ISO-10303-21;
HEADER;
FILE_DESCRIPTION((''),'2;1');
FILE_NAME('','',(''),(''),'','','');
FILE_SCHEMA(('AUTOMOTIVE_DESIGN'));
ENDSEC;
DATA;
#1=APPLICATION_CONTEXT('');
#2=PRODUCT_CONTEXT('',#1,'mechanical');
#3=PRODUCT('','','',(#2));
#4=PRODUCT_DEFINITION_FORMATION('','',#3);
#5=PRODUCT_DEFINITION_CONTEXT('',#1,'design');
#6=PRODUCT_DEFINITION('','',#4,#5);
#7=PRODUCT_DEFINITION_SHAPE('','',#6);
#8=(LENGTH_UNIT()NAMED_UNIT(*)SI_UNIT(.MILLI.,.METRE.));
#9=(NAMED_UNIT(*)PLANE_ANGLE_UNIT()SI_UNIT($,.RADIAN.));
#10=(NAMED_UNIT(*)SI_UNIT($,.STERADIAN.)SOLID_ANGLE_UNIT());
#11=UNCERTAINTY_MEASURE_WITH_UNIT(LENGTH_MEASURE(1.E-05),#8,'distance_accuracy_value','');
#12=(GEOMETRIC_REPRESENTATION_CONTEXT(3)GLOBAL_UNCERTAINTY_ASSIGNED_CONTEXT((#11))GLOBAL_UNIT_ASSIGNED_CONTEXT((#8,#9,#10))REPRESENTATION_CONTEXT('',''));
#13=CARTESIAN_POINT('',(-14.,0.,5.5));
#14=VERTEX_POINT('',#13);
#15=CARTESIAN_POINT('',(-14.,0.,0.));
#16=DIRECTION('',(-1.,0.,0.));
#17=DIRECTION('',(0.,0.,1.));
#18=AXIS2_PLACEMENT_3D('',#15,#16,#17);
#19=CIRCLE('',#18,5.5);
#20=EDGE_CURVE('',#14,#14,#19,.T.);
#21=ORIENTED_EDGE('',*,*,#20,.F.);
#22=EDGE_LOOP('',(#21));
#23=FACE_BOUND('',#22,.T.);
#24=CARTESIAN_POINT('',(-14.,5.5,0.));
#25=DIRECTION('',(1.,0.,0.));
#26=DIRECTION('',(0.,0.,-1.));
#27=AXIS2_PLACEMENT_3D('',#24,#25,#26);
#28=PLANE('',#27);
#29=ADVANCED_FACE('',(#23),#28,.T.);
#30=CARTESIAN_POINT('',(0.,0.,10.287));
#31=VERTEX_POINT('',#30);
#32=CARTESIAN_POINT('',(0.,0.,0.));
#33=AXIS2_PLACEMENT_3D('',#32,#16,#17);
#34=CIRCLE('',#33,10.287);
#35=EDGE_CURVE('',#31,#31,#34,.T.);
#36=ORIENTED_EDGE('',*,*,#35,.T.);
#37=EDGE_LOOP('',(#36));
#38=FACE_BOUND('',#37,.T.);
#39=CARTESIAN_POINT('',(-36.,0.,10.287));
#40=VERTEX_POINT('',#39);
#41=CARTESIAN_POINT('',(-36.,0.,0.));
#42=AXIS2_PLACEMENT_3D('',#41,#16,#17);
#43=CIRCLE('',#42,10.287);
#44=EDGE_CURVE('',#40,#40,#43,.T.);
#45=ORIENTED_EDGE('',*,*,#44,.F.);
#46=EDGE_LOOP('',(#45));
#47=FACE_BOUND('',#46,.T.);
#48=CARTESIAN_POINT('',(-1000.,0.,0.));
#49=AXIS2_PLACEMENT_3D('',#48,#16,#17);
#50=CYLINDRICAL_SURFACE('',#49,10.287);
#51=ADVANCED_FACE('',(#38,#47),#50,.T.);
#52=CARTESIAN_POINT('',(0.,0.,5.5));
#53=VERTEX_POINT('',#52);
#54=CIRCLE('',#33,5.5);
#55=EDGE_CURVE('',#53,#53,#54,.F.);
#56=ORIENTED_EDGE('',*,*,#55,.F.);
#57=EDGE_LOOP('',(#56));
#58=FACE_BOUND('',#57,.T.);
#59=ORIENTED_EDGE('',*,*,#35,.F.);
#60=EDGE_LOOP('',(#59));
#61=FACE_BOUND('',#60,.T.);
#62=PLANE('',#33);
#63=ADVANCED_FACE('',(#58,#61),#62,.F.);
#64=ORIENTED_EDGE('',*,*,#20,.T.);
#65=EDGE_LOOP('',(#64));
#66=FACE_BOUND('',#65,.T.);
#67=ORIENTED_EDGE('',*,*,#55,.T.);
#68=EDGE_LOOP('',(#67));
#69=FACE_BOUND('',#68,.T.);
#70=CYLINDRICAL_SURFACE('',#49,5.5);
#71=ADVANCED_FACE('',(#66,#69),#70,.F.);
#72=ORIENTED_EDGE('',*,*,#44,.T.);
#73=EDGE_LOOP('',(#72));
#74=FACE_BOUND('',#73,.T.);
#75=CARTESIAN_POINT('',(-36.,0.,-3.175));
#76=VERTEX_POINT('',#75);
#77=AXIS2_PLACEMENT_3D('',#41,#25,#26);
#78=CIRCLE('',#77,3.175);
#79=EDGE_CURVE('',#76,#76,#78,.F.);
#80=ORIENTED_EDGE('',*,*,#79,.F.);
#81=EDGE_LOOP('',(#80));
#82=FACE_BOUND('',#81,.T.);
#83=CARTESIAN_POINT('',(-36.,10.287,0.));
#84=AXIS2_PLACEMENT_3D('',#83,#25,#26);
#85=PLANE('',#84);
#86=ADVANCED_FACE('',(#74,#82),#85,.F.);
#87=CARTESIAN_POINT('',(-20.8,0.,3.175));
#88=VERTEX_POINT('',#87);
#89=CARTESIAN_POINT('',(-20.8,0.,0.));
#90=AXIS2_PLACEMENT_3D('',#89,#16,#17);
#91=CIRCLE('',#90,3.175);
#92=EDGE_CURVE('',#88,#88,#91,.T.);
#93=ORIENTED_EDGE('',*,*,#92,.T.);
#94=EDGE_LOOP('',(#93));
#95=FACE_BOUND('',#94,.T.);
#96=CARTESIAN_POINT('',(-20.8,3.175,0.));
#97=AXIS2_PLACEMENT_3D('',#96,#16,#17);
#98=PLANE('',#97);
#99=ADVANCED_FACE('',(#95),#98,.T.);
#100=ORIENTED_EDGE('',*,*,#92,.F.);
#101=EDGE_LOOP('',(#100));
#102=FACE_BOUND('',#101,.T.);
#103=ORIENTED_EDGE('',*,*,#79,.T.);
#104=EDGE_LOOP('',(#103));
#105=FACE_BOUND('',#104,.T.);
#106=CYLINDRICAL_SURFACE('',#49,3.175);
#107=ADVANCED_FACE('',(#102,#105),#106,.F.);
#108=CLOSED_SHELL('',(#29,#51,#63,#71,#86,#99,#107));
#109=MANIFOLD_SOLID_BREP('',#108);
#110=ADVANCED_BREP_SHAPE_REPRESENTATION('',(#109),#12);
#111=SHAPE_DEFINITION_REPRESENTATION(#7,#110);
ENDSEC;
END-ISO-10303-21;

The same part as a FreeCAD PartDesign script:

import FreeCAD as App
import Part
import Sketcher

V = App.Vector
Q = App.Units.Quantity

doc = App.newDocument("Part")
body = doc.addObject("PartDesign::Body", "Body")

sketch1 = doc.addObject("Sketcher::SketchObject", "Sketch")
body.addObject(sketch1)
sketch1.AttachmentSupport = (doc.XY_Plane, [""])
sketch1.MapMode = "FlatFace"
sketch1.addGeometry(Part.LineSegment(V(-36, 10, 0), V(-36, 0, 0)), False)
sketch1.addGeometry(Part.LineSegment(V(-36, 0, 0), V(0, 0, 0)), False)
sketch1.addGeometry(Part.LineSegment(V(0, 0, 0), V(0, 10, 0)), False)
sketch1.addGeometry(Part.LineSegment(V(0, 10, 0), V(-36, 10, 0)), False)
sketch1.addConstraint(Sketcher.Constraint("Coincident", 0, 2, 1, 1))
sketch1.addConstraint(Sketcher.Constraint("Coincident", 1, 2, 2, 1))
sketch1.addConstraint(Sketcher.Constraint("Coincident", 2, 2, 3, 1))
sketch1.addConstraint(Sketcher.Constraint("Coincident", 3, 2, 0, 1))
sketch1.addConstraint(Sketcher.Constraint("Vertical", 0))
sketch1.addConstraint(Sketcher.Constraint("Horizontal", 1))
sketch1.addConstraint(Sketcher.Constraint("Vertical", 2))
sketch1.addConstraint(Sketcher.Constraint("Horizontal", 3))
sketch1.addConstraint(Sketcher.Constraint("Coincident", 1, 2, -1, 1))
sketch1.addConstraint(Sketcher.Constraint("DistanceX", 1, 1, 1, 2, Q("36 mm")))
sketch1.addConstraint(Sketcher.Constraint("DistanceY", 0, 2, 0, 1, Q("10.287 mm")))
revolution = doc.addObject("PartDesign::Revolution", "Revolution")
body.addObject(revolution)
revolution.Profile = sketch1
revolution.ReferenceAxis = (sketch1, ["H_Axis"])
revolution.Angle = 360

sketch2 = doc.addObject("Sketcher::SketchObject", "Sketch001")
body.addObject(sketch2)
sketch2.AttachmentSupport = (doc.XY_Plane, [""])
sketch2.MapMode = "FlatFace"
sketch2.addGeometry(Part.LineSegment(V(-14, 6, 0), V(-14, 0, 0)), False)
sketch2.addGeometry(Part.LineSegment(V(-14, 0, 0), V(1, 0, 0)), False)
sketch2.addGeometry(Part.LineSegment(V(1, 0, 0), V(1, 6, 0)), False)
sketch2.addGeometry(Part.LineSegment(V(1, 6, 0), V(-14, 6, 0)), False)
sketch2.addConstraint(Sketcher.Constraint("Coincident", 0, 2, 1, 1))
sketch2.addConstraint(Sketcher.Constraint("Coincident", 1, 2, 2, 1))
sketch2.addConstraint(Sketcher.Constraint("Coincident", 2, 2, 3, 1))
sketch2.addConstraint(Sketcher.Constraint("Coincident", 3, 2, 0, 1))
sketch2.addConstraint(Sketcher.Constraint("Vertical", 0))
sketch2.addConstraint(Sketcher.Constraint("Horizontal", 1))
sketch2.addConstraint(Sketcher.Constraint("Vertical", 2))
sketch2.addConstraint(Sketcher.Constraint("Horizontal", 3))
sketch2.addConstraint(Sketcher.Constraint("PointOnObject", 0, 2, -1))
sketch2.addConstraint(Sketcher.Constraint("DistanceX", 1, 1, 1, 2, Q("15 mm")))
sketch2.addConstraint(Sketcher.Constraint("DistanceY", 0, 2, 0, 1, Q("5.5 mm")))
sketch2.addConstraint(Sketcher.Constraint("DistanceX", 0, 2, -1, 1, Q("14 mm")))
groove = doc.addObject("PartDesign::Groove", "Groove")
body.addObject(groove)
groove.Profile = sketch2
groove.ReferenceAxis = (sketch2, ["H_Axis"])
groove.Angle = 360

sketch3 = doc.addObject("Sketcher::SketchObject", "Sketch002")
body.addObject(sketch3)
sketch3.AttachmentSupport = (doc.XY_Plane, [""])
sketch3.MapMode = "FlatFace"
sketch3.addGeometry(Part.LineSegment(V(-37, 3.2, 0), V(-37, 0, 0)), False)
sketch3.addGeometry(Part.LineSegment(V(-37, 0, 0), V(-20.8, 0, 0)), False)
sketch3.addGeometry(Part.LineSegment(V(-20.8, 0, 0), V(-20.8, 3.2, 0)), False)
sketch3.addGeometry(Part.LineSegment(V(-20.8, 3.2, 0), V(-37, 3.2, 0)), False)
sketch3.addConstraint(Sketcher.Constraint("Coincident", 0, 2, 1, 1))
sketch3.addConstraint(Sketcher.Constraint("Coincident", 1, 2, 2, 1))
sketch3.addConstraint(Sketcher.Constraint("Coincident", 2, 2, 3, 1))
sketch3.addConstraint(Sketcher.Constraint("Coincident", 3, 2, 0, 1))
sketch3.addConstraint(Sketcher.Constraint("Vertical", 0))
sketch3.addConstraint(Sketcher.Constraint("Horizontal", 1))
sketch3.addConstraint(Sketcher.Constraint("Vertical", 2))
sketch3.addConstraint(Sketcher.Constraint("Horizontal", 3))
sketch3.addConstraint(Sketcher.Constraint("PointOnObject", 0, 2, -1))
sketch3.addConstraint(Sketcher.Constraint("DistanceX", 1, 1, 1, 2, Q("16.2 mm")))
sketch3.addConstraint(Sketcher.Constraint("DistanceX", 0, 2, -1, 1, Q("37 mm")))
sketch3.addConstraint(Sketcher.Constraint("DistanceY", 0, 2, 0, 1, Q("3.175 mm")))
groove2 = doc.addObject("PartDesign::Groove", "Groove001")
body.addObject(groove2)
groove2.Profile = sketch3
groove2.ReferenceAxis = (sketch3, ["H_Axis"])
groove2.Angle = 360

doc.recompute()
